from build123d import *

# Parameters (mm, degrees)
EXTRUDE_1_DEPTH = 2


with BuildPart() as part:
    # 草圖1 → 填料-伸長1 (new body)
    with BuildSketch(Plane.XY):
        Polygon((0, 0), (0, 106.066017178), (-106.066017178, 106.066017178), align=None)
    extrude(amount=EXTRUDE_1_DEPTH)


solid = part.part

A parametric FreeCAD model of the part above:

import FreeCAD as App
import Part
import Sketcher
from FreeCAD import Vector

doc = App.newDocument("Part")
params = doc.addObject("Spreadsheet::Sheet", "Params")
for row, (alias, value) in enumerate([
    ("sketch1_length", "150 mm"),
    ("pad1_length", "2 mm"),
], start=1):
    params.set(f"A{row}", alias)
    params.set(f"B{row}", "=" + value)
    params.setAlias(f"B{row}", alias)

body = doc.addObject("PartDesign::Body", "Body")

# Sketch on XY plane
sketch1 = body.newObject("Sketcher::SketchObject", "Sketch")
sketch1.AttachmentSupport = (doc.getObject("XY_Plane"), [""])
sketch1.MapMode = "FlatFace"
sketch1.addGeometry([
    Part.LineSegment(Vector(0, 0, 0), Vector(0, 106, 0)),
    Part.LineSegment(Vector(0, 106, 0), Vector(-106, 106, 0)),
    Part.LineSegment(Vector(-106, 106, 0), Vector(0, 0, 0)),
], False)
sketch1.addConstraint([
    Sketcher.Constraint("Coincident", 0, 2, 1, 1),
    Sketcher.Constraint("Coincident", 1, 2, 2, 1),
    Sketcher.Constraint("Coincident", 2, 2, 0, 1),
    Sketcher.Constraint("Vertical", 0),
    Sketcher.Constraint("Horizontal", 1),
    Sketcher.Constraint("Coincident", 2, 2, -1, 1),
    Sketcher.Constraint("Equal", 1, 0),
    Sketcher.Constraint("Distance", 2, 150.0),
])
sketch1.setExpression("Constraints[7]", "Params.sketch1_length")
pad1 = body.newObject("PartDesign::Pad", "Pad")
pad1.Profile = sketch1
pad1.setExpression("Length", "Params.pad1_length")

doc.recompute()
